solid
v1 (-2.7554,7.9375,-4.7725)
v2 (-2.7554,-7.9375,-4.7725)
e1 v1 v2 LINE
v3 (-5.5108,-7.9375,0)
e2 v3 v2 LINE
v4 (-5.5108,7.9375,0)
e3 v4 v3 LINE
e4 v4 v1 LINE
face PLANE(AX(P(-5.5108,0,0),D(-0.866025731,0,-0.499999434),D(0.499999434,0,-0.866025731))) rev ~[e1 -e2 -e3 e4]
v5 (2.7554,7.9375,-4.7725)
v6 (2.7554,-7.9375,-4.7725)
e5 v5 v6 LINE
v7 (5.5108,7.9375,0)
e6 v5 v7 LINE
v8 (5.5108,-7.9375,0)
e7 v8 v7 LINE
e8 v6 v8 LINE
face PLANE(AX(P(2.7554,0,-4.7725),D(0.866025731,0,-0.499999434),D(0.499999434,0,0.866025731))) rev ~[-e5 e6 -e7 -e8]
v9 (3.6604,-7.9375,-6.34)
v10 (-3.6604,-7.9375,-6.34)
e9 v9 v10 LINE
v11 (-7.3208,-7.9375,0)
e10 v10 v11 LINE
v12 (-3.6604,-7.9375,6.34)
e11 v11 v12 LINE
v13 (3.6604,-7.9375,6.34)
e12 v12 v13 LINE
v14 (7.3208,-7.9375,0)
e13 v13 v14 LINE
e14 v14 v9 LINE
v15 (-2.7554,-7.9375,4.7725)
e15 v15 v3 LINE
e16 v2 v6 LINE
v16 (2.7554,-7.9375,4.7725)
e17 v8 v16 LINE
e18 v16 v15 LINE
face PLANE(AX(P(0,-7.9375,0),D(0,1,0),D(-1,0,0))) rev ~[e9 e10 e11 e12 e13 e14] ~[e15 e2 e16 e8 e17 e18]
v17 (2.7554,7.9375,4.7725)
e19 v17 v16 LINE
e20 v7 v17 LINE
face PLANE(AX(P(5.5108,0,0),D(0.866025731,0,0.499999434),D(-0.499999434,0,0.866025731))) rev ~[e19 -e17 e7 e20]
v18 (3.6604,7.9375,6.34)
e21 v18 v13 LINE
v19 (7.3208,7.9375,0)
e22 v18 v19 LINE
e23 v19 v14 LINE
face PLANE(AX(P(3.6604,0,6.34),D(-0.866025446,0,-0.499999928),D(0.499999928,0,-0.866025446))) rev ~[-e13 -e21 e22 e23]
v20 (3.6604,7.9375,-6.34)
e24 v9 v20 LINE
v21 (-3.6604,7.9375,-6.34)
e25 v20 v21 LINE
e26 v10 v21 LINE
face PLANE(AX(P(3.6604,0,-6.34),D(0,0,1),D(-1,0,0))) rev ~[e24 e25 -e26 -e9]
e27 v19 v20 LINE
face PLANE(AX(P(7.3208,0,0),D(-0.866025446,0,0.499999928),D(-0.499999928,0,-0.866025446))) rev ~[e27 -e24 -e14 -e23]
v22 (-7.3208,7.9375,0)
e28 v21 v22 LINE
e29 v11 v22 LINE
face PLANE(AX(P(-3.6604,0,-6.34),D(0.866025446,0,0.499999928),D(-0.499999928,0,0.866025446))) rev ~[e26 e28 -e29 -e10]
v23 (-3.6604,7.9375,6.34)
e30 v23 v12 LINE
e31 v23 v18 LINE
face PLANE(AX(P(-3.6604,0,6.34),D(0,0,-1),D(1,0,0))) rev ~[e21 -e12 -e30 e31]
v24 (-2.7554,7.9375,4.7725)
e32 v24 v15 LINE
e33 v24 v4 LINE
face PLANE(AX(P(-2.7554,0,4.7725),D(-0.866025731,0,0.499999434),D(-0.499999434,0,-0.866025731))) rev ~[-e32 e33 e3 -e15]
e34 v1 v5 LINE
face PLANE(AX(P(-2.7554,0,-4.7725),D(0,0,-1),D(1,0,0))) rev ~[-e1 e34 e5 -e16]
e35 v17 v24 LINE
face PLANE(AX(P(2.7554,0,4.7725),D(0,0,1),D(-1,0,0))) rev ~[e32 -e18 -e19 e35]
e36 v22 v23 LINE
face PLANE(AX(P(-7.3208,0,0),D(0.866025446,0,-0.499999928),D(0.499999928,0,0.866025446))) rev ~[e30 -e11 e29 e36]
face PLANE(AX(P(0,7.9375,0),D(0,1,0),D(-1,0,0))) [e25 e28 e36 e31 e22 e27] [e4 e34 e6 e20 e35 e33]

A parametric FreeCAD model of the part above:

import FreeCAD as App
import Part
import Sketcher

V = App.Vector
Q = App.Units.Quantity

doc = App.newDocument("Part")
params = doc.addObject("Spreadsheet::Sheet", "Params")
for row, (alias, value) in enumerate([
    ("pad1_length", "0.625 in"),
], start=1):
    params.set(f"A{row}", alias)
    params.set(f"B{row}", "=" + value)
    params.setAlias(f"B{row}", alias)

body = doc.addObject("PartDesign::Body", "Body")

sketch1 = body.newObject("Sketcher::SketchObject", "Sketch")
sketch1.AttachmentSupport = (doc.getObject("XZ_Plane"), [""])
sketch1.MapMode = "FlatFace"
sketch1.addGeometry(Part.LineSegment(V(7, 0, 0), V(4, -6, 0)), False)
sketch1.addGeometry(Part.LineSegment(V(4, -6, 0), V(-4, -6, 0)), False)
sketch1.addGeometry(Part.LineSegment(V(-4, -6, 0), V(-7, 0, 0)), False)
sketch1.addGeometry(Part.LineSegment(V(-7, 0, 0), V(-4, 6, 0)), False)
sketch1.addGeometry(Part.LineSegment(V(-4, 6, 0), V(4, 6, 0)), False)
sketch1.addGeometry(Part.LineSegment(V(4, 6, 0), V(7, 0, 0)), False)
sketch1.addGeometry(Part.LineSegment(V(3, -5, 0), V(6, 0, 0)), False)
sketch1.addGeometry(Part.LineSegment(V(6, 0, 0), V(3, 5, 0)), False)
sketch1.addGeometry(Part.LineSegment(V(3, 5, 0), V(-3, 5, 0)), False)
sketch1.addGeometry(Part.LineSegment(V(-3, 5, 0), V(-6, 0, 0)), False)
sketch1.addGeometry(Part.LineSegment(V(-6, 0, 0), V(-3, -5, 0)), False)
sketch1.addGeometry(Part.LineSegment(V(-3, -5, 0), V(3, -5, 0)), False)
sketch1.addConstraint(Sketcher.Constraint("Coincident", 0, 2, 1, 1))
sketch1.addConstraint(Sketcher.Constraint("Coincident", 1, 2, 2, 1))
sketch1.addConstraint(Sketcher.Constraint("Coincident", 2, 2, 3, 1))
sketch1.addConstraint(Sketcher.Constraint("Coincident", 3, 2, 4, 1))
sketch1.addConstraint(Sketcher.Constraint("Coincident", 4, 2, 5, 1))
sketch1.addConstraint(Sketcher.Constraint("Coincident", 5, 2, 0, 1))
sketch1.addConstraint(Sketcher.Constraint("Coincident", 6, 2, 7, 1))
sketch1.addConstraint(Sketcher.Constraint("Coincident", 7, 2, 8, 1))
sketch1.addConstraint(Sketcher.Constraint("Coincident", 8, 2, 9, 1))
sketch1.addConstraint(Sketcher.Constraint("Coincident", 9, 2, 10, 1))
sketch1.addConstraint(Sketcher.Constraint("Coincident", 10, 2, 11, 1))
sketch1.addConstraint(Sketcher.Constraint("Coincident", 11, 2, 6, 1))
sketch1.addConstraint(Sketcher.Constraint("Horizontal", 1))
sketch1.addConstraint(Sketcher.Constraint("Horizontal", 4))
sketch1.addConstraint(Sketcher.Constraint("Horizontal", 8))
sketch1.addConstraint(Sketcher.Constraint("Horizontal", 11))
sketch1.addConstraint(Sketcher.Constraint("Symmetric", 0, 2, 3, 2, -1, 1))
sketch1.addConstraint(Sketcher.Constraint("Symmetric", 2, 2, 5, 2, -1, 1))
sketch1.addConstraint(Sketcher.Constraint("Symmetric", 6, 2, 9, 2, -1, 1))
sketch1.addConstraint(Sketcher.Constraint("Symmetric", 7, 2, 10, 2, -1, 1))
sketch1.addConstraint(Sketcher.Constraint("PointOnObject", 2, 2, -1))
sketch1.addConstraint(Sketcher.Constraint("PointOnObject", 6, 2, -1))
sketch1.addConstraint(Sketcher.Constraint("Parallel", 2, 5))
sketch1.addConstraint(Sketcher.Constraint("Parallel", 3, 6))
sketch1.addConstraint(Sketcher.Constraint("Parallel", 5, 7))
sketch1.addConstraint(Sketcher.Constraint("Parallel", 6, 9))
sketch1.addConstraint(Sketcher.Constraint("Vertical", 1, 2, 3, 2))
sketch1.addConstraint(Sketcher.Constraint("Angle", 0, Q("-120 deg")))
sketch1.addConstraint(Sketcher.Constraint("DistanceY", 1, 2, 3, 2, 12.68))
sketch1.addConstraint(Sketcher.Constraint("DistanceX", 1, 2, 1, 1, 7.3208))
sketch1.addConstraint(Sketcher.Constraint("DistanceX", 8, 2, 8, 1, 5.5108))
sketch1.addConstraint(Sketcher.Constraint("DistanceY", -1, 1, 7, 2, Q("0.1879 in")))
pad1 = body.newObject("PartDesign::Pad", "Pad")
pad1.Profile = sketch1
pad1.setExpression("Length", "Params.pad1_length")
pad1.Midplane = True

doc.recompute()
